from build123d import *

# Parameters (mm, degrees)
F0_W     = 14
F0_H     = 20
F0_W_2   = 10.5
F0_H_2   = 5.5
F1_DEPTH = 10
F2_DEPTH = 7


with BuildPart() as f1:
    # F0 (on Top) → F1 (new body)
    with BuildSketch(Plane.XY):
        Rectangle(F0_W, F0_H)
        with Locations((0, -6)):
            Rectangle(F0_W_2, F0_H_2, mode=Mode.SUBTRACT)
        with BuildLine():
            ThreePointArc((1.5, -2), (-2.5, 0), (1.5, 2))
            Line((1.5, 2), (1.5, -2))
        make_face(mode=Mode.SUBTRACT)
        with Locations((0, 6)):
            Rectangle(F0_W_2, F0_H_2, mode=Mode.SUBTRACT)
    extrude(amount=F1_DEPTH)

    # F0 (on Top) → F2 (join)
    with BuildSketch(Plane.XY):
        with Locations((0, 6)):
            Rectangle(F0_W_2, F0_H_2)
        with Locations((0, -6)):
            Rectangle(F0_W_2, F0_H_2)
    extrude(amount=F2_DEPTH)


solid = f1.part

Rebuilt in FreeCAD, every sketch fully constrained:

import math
import FreeCAD as App
import Part
import Sketcher
from FreeCAD import Vector
Q = App.Units.Quantity


def add_polygon(sketch, points):
    """Adds a closed chain of lines whose ends are joined by coincident constraints."""
    first, n = sketch.GeometryCount, len(points)
    for a, b in zip(points, points[1:] + points[:1]):
        sketch.addGeometry(Part.LineSegment(App.Vector(*a, 0), App.Vector(*b, 0)), False)
    for i in range(n):
        sketch.addConstraint(Sketcher.Constraint("Coincident", first + i, 2, first + (i + 1) % n, 1))

doc = App.newDocument("Part")
params = doc.addObject("Spreadsheet::Sheet", "Params")
for row, (alias, value) in enumerate([
    ("sketch1_radius", "2.5 mm"),
    ("sketch1_width", "14 mm"),
    ("sketch1_height", "20 mm"),
    ("sketch1_height2", "4 mm"),
    ("sketch1_width2", "10.5 mm"),
    ("pad1_length", "10 mm"),
    ("sketch2_width", "10.5 mm"),
    ("sketch2_height", "5.5 mm"),
    ("pad2_length", "7 mm"),
], start=1):
    params.set(f"A{row}", alias)
    params.set(f"B{row}", "=" + value)
    params.setAlias(f"B{row}", alias)

body = doc.addObject("PartDesign::Body", "Body")

# Sketch on XY plane
sketch1 = body.newObject("Sketcher::SketchObject", "Sketch")
sketch1.AttachmentSupport = (doc.getObject("XY_Plane"), [""])
sketch1.MapMode = "FlatFace"
add_polygon(sketch1, [(-7, 10), (-7, -10), (7, -10), (7, 10)])  # lines 0-3
add_polygon(sketch1, [(5.2, -8.8), (-5.2, -8.8), (-5.2, -3.2), (5.2, -3.2)])  # lines 4-7
sketch1.addGeometry(Part.LineSegment(Vector(1.5, 2, 0), Vector(1.5, -2, 0)), False)  # 8
sketch1.addGeometry(Part.ArcOfCircle(Part.Circle(Vector(0, 0, 0), Vector(0, 0, 1), 2.5), math.radians(53), math.radians(307)), False)  # 9
add_polygon(sketch1, [(5.2, 3.2), (-5.2, 3.2), (-5.2, 8.8), (5.2, 8.8)])  # lines 10-13
sketch1.addConstraint(Sketcher.Constraint("Coincident", 8, 1, 9, 1))
sketch1.addConstraint(Sketcher.Constraint("Coincident", 9, 2, 8, 2))
sketch1.addConstraint(Sketcher.Constraint("Vertical", 0))
sketch1.addConstraint(Sketcher.Constraint("Horizontal", 1))
sketch1.addConstraint(Sketcher.Constraint("Vertical", 2))
sketch1.addConstraint(Sketcher.Constraint("Horizontal", 3))
sketch1.addConstraint(Sketcher.Constraint("Horizontal", 4))
sketch1.addConstraint(Sketcher.Constraint("Vertical", 5))
sketch1.addConstraint(Sketcher.Constraint("Horizontal", 6))
sketch1.addConstraint(Sketcher.Constraint("Vertical", 7))
sketch1.addConstraint(Sketcher.Constraint("Vertical", 8))
sketch1.addConstraint(Sketcher.Constraint("Horizontal", 10))
sketch1.addConstraint(Sketcher.Constraint("Vertical", 11))
sketch1.addConstraint(Sketcher.Constraint("Horizontal", 12))
sketch1.addConstraint(Sketcher.Constraint("Vertical", 13))
sketch1.addConstraint(Sketcher.Constraint("Coincident", 9, 3, -1, 1))
sketch1.addConstraint(Sketcher.Constraint("Symmetric", 0, 2, 2, 2, -1, 1))
sketch1.addConstraint(Sketcher.Constraint("Symmetric", 6, 2, 10, 2, -1, 1))
sketch1.addConstraint(Sketcher.Constraint("Symmetric", 4, 2, 12, 2, -1, 1))
sketch1.addConstraint(Sketcher.Constraint("Vertical", 5, 2, 10, 2))
sketch1.addConstraint(Sketcher.Constraint("Radius", 9, Q("2.5 mm")))
sketch1.addConstraint(Sketcher.Constraint("DistanceX", 1, 1, 1, 2, Q("14 mm")))
sketch1.addConstraint(Sketcher.Constraint("DistanceY", 0, 2, 0, 1, Q("20 mm")))
sketch1.addConstraint(Sketcher.Constraint("DistanceY", 8, 2, 8, 1, Q("4 mm")))
sketch1.addConstraint(Sketcher.Constraint("DistanceX", 4, 2, 4, 1, Q("10.5 mm")))
sketch1.addConstraint(Sketcher.Constraint("DistanceY", 5, 1, 5, 2, Q("5.5 mm")))
sketch1.addConstraint(Sketcher.Constraint("DistanceY", 5, 2, 11, 2, Q("12 mm")))
sketch1.setExpression("Constraints[32]", "Params.sketch1_radius")
sketch1.setExpression("Constraints[33]", "Params.sketch1_width")
sketch1.setExpression("Constraints[34]", "Params.sketch1_height")
sketch1.setExpression("Constraints[35]", "Params.sketch1_height2")
sketch1.setExpression("Constraints[36]", "Params.sketch1_width2")
pad1 = body.newObject("PartDesign::Pad", "Pad")
pad1.Profile = sketch1
pad1.setExpression("Length", "Params.pad1_length")

# Sketch on XY plane
sketch2 = body.newObject("Sketcher::SketchObject", "Sketch001")
sketch2.AttachmentSupport = (doc.getObject("XY_Plane"), [""])
sketch2.MapMode = "FlatFace"
add_polygon(sketch2, [(-5, 9), (-5, 3), (5, 3), (5, 9)])  # lines 0-3
add_polygon(sketch2, [(-5, -3), (-5, -9), (5, -9), (5, -3)])  # lines 4-7
sketch2.addConstraint(Sketcher.Constraint("Vertical", 0))
sketch2.addConstraint(Sketcher.Constraint("Horizontal", 1))
sketch2.addConstraint(Sketcher.Constraint("Vertical", 2))
sketch2.addConstraint(Sketcher.Constraint("Horizontal", 3))
sketch2.addConstraint(Sketcher.Constraint("Vertical", 4))
sketch2.addConstraint(Sketcher.Constraint("Horizontal", 5))
sketch2.addConstraint(Sketcher.Constraint("Vertical", 6))
sketch2.addConstraint(Sketcher.Constraint("Horizontal", 7))
sketch2.addConstraint(Sketcher.Constraint("Symmetric", 2, 2, 4, 2, -1, 1))
sketch2.addConstraint(Sketcher.Constraint("Symmetric", 0, 2, 6, 2, -1, 1))
sketch2.addConstraint(Sketcher.Constraint("Vertical", 3, 2, 4, 2))
sketch2.addConstraint(Sketcher.Constraint("DistanceX", 1, 1, 1, 2, Q("10.5 mm")))
sketch2.addConstraint(Sketcher.Constraint("DistanceY", 0, 2, 0, 1, Q("5.5 mm")))
sketch2.addConstraint(Sketcher.Constraint("DistanceY", 4, 2, 0, 2, Q("12 mm")))
sketch2.setExpression("Constraints[19]", "Params.sketch2_width")
sketch2.setExpression("Constraints[20]", "Params.sketch2_height")
pad2 = body.newObject("PartDesign::Pad", "Pad001")
pad2.Profile = sketch2
pad2.setExpression("Length", "Params.pad2_length")

doc.recompute()
